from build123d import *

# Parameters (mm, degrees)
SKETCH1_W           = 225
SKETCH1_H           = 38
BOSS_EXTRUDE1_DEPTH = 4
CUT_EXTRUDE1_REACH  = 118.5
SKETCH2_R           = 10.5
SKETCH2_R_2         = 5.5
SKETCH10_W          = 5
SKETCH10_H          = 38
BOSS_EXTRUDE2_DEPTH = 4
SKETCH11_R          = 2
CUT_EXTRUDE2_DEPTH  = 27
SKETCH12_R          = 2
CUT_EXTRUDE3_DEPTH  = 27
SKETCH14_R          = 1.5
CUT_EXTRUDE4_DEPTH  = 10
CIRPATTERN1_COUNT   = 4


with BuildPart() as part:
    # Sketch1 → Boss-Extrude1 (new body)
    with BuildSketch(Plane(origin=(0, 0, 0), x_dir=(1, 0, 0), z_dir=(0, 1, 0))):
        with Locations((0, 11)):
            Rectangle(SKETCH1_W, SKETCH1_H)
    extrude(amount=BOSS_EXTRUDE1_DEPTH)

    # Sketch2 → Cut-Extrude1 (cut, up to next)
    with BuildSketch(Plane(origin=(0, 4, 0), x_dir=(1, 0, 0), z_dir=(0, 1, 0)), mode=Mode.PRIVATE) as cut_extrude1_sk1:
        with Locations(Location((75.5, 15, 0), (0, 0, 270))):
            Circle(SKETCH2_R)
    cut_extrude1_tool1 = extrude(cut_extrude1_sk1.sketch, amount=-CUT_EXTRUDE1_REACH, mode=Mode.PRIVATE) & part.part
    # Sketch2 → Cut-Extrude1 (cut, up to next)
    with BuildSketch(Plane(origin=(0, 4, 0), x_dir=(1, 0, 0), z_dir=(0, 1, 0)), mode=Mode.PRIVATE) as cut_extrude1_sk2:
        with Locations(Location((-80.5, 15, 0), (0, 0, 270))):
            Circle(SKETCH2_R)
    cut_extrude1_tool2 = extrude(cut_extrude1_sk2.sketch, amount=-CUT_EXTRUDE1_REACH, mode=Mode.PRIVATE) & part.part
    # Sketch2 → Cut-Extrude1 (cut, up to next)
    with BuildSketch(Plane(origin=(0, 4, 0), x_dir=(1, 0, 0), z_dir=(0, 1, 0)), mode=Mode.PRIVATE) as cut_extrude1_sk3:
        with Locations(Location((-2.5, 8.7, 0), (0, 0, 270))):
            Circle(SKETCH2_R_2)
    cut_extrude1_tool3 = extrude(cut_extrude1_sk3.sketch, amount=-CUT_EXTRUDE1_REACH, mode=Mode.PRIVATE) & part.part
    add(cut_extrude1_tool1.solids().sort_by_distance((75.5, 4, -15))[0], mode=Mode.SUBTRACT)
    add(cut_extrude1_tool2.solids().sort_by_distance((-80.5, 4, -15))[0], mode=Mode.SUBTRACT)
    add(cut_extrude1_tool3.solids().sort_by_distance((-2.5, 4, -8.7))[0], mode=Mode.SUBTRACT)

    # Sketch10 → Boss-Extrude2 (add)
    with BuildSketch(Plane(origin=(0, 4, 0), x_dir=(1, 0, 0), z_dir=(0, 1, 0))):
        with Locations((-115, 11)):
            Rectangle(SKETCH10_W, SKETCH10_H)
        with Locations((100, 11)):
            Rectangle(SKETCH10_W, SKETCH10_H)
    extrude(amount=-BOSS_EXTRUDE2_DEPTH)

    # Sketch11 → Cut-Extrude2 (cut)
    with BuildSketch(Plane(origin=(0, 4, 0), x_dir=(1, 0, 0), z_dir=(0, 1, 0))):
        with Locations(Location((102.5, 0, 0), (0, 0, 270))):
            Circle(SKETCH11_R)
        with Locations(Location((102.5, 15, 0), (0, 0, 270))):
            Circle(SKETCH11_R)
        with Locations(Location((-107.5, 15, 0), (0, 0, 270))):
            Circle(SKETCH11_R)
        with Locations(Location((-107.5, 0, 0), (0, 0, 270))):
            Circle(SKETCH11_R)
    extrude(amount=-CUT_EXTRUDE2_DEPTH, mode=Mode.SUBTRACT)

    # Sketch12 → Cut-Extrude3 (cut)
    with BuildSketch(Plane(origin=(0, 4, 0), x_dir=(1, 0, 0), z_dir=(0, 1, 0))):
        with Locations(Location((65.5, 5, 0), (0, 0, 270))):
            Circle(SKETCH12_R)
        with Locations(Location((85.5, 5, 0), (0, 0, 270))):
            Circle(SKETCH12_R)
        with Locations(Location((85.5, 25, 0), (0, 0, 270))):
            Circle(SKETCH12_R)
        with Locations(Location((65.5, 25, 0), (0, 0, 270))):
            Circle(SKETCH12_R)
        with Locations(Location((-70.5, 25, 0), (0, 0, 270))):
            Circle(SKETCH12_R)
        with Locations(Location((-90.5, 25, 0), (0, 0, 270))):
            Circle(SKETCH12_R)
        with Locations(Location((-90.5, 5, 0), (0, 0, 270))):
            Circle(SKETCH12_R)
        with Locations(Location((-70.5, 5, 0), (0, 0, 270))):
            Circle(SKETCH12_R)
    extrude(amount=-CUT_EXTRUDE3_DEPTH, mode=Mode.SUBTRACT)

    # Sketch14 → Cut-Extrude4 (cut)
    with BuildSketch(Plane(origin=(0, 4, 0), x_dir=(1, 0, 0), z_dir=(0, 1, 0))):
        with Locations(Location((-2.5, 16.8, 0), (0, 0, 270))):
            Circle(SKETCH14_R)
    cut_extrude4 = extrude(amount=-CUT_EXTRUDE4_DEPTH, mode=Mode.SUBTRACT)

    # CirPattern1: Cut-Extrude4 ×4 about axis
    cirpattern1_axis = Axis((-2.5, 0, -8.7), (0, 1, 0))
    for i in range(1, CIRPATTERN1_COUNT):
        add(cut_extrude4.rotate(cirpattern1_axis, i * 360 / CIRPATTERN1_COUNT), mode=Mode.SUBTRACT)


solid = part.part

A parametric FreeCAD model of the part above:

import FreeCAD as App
import Part
import Sketcher
from FreeCAD import Vector
Q = App.Units.Quantity

doc = App.newDocument("Part")
body = doc.addObject("PartDesign::Body", "Body")

# Sketch on XZ plane
sketch1 = body.newObject("Sketcher::SketchObject", "Sketch")
sketch1.AttachmentSupport = (doc.getObject("XZ_Plane"), [""])
sketch1.MapMode = "FlatFace"
sketch1.addGeometry(Part.LineSegment(Vector(-112, -30, 0), Vector(-112, 8, 0)), False)
sketch1.addGeometry(Part.LineSegment(Vector(-112, 8, 0), Vector(112, 8, 0)), False)
sketch1.addGeometry(Part.LineSegment(Vector(112, 8, 0), Vector(112, -30, 0)), False)
sketch1.addGeometry(Part.LineSegment(Vector(112, -30, 0), Vector(-112, -30, 0)), False)
sketch1.addConstraint(Sketcher.Constraint("Coincident", 0, 2, 1, 1))
sketch1.addConstraint(Sketcher.Constraint("Coincident", 1, 2, 2, 1))
sketch1.addConstraint(Sketcher.Constraint("Coincident", 2, 2, 3, 1))
sketch1.addConstraint(Sketcher.Constraint("Coincident", 3, 2, 0, 1))
sketch1.addConstraint(Sketcher.Constraint("Vertical", 0))
sketch1.addConstraint(Sketcher.Constraint("Horizontal", 1))
sketch1.addConstraint(Sketcher.Constraint("Vertical", 2))
sketch1.addConstraint(Sketcher.Constraint("Horizontal", 3))
sketch1.addConstraint(Sketcher.Constraint("DistanceX", 1, 1, 1, 2, Q("225 mm")))
sketch1.addConstraint(Sketcher.Constraint("DistanceY", 0, 1, 0, 2, Q("38 mm")))
sketch1.addConstraint(Sketcher.Constraint("DistanceY", -1, 1, 0, 2, Q("8 mm")))
sketch1.addConstraint(Sketcher.Constraint("DistanceX", 0, 2, -1, 1, Q("112.5 mm")))
pad1 = body.newObject("PartDesign::Pad", "Pad")
pad1.Profile = sketch1
pad1.Length = 4
pad1.Reversed = True

# Sketch on XZ plane
sketch2 = body.newObject("Sketcher::SketchObject", "Sketch001")
sketch2.AttachmentSupport = (doc.getObject("XZ_Plane"), [""])
sketch2.MapMode = "FlatFace"
sketch2.AttachmentOffset = App.Placement(Vector(0, 0, -4), App.Rotation())
sketch2.addGeometry(Part.Circle(Vector(76, -15, 0), Vector(0, 0, 1), 10), False)
sketch2.addConstraint(Sketcher.Constraint("Diameter", 0, Q("21 mm")))
sketch2.addConstraint(Sketcher.Constraint("DistanceY", 0, 3, -1, 1, Q("15 mm")))
sketch2.addConstraint(Sketcher.Constraint("DistanceX", -1, 1, 0, 3, Q("75.5 mm")))
pocket1 = body.newObject("PartDesign::Pocket", "Pocket")
pocket1.Profile = sketch2
pocket1.Type = "UpToFirst"
pocket1.Reversed = True

# Sketch on XZ plane
sketch3 = body.newObject("Sketcher::SketchObject", "Sketch002")
sketch3.AttachmentSupport = (doc.getObject("XZ_Plane"), [""])
sketch3.MapMode = "FlatFace"
sketch3.AttachmentOffset = App.Placement(Vector(0, 0, -4), App.Rotation())
sketch3.addGeometry(Part.Circle(Vector(-80, -15, 0), Vector(0, 0, 1), 10), False)
sketch3.addConstraint(Sketcher.Constraint("Diameter", 0, Q("21 mm")))
sketch3.addConstraint(Sketcher.Constraint("DistanceY", 0, 3, -1, 1, Q("15 mm")))
sketch3.addConstraint(Sketcher.Constraint("DistanceX", 0, 3, -1, 1, Q("80.5 mm")))
pocket2 = body.newObject("PartDesign::Pocket", "Pocket001")
pocket2.Profile = sketch3
pocket2.Type = "UpToFirst"
pocket2.Reversed = True

# Sketch on XZ plane
sketch4 = body.newObject("Sketcher::SketchObject", "Sketch003")
sketch4.AttachmentSupport = (doc.getObject("XZ_Plane"), [""])
sketch4.MapMode = "FlatFace"
sketch4.AttachmentOffset = App.Placement(Vector(0, 0, -4), App.Rotation())
sketch4.addGeometry(Part.Circle(Vector(-2, -9, 0), Vector(0, 0, 1), 6), False)
sketch4.addConstraint(Sketcher.Constraint("Diameter", 0, Q("11 mm")))
sketch4.addConstraint(Sketcher.Constraint("DistanceX", 0, 3, -1, 1, Q("2.5 mm")))
sketch4.addConstraint(Sketcher.Constraint("DistanceY", 0, 3, -1, 1, Q("8.7 mm")))
pocket3 = body.newObject("PartDesign::Pocket", "Pocket002")
pocket3.Profile = sketch4
pocket3.Type = "UpToFirst"
pocket3.Reversed = True

# Sketch on XZ plane
sketch5 = body.newObject("Sketcher::SketchObject", "Sketch004")
sketch5.AttachmentSupport = (doc.getObject("XZ_Plane"), [""])
sketch5.MapMode = "FlatFace"
sketch5.AttachmentOffset = App.Placement(Vector(0, 0, -4), App.Rotation())
sketch5.addGeometry(Part.LineSegment(Vector(-118, -30, 0), Vector(-118, 8, 0)), False)
sketch5.addGeometry(Part.LineSegment(Vector(-118, 8, 0), Vector(-112, 8, 0)), False)
sketch5.addGeometry(Part.LineSegment(Vector(-112, 8, 0), Vector(-112, -30, 0)), False)
sketch5.addGeometry(Part.LineSegment(Vector(-112, -30, 0), Vector(-118, -30, 0)), False)
sketch5.addGeometry(Part.LineSegment(Vector(98, -30, 0), Vector(98, 8, 0)), False)
sketch5.addGeometry(Part.LineSegment(Vector(98, 8, 0), Vector(102, 8, 0)), False)
sketch5.addGeometry(Part.LineSegment(Vector(102, 8, 0), Vector(102, -30, 0)), False)
sketch5.addGeometry(Part.LineSegment(Vector(102, -30, 0), Vector(98, -30, 0)), False)
sketch5.addConstraint(Sketcher.Constraint("Coincident", 0, 2, 1, 1))
sketch5.addConstraint(Sketcher.Constraint("Coincident", 1, 2, 2, 1))
sketch5.addConstraint(Sketcher.Constraint("Coincident", 2, 2, 3, 1))
sketch5.addConstraint(Sketcher.Constraint("Coincident", 3, 2, 0, 1))
sketch5.addConstraint(Sketcher.Constraint("Coincident", 4, 2, 5, 1))
sketch5.addConstraint(Sketcher.Constraint("Coincident", 5, 2, 6, 1))
sketch5.addConstraint(Sketcher.Constraint("Coincident", 6, 2, 7, 1))
sketch5.addConstraint(Sketcher.Constraint("Coincident", 7, 2, 4, 1))
sketch5.addConstraint(Sketcher.Constraint("Vertical", 0))
sketch5.addConstraint(Sketcher.Constraint("Horizontal", 1))
sketch5.addConstraint(Sketcher.Constraint("Vertical", 2))
sketch5.addConstraint(Sketcher.Constraint("Horizontal", 3))
sketch5.addConstraint(Sketcher.Constraint("Vertical", 4))
sketch5.addConstraint(Sketcher.Constraint("Horizontal", 5))
sketch5.addConstraint(Sketcher.Constraint("Vertical", 6))
sketch5.addConstraint(Sketcher.Constraint("Horizontal", 7))
sketch5.addConstraint(Sketcher.Constraint("Horizontal", 1, 2, 4, 2))
sketch5.addConstraint(Sketcher.Constraint("Horizontal", 3, 2, 6, 2))
sketch5.addConstraint(Sketcher.Constraint("Equal", 3, 5))
sketch5.addConstraint(Sketcher.Constraint("DistanceX", 1, 1, 1, 2, Q("5 mm")))
sketch5.addConstraint(Sketcher.Constraint("DistanceY", 0, 1, 0, 2, Q("38 mm")))
sketch5.addConstraint(Sketcher.Constraint("DistanceY", -1, 1, 0, 2, Q("8 mm")))
sketch5.addConstraint(Sketcher.Constraint("DistanceX", 1, 2, 4, 2, Q("210 mm")))
sketch5.addConstraint(Sketcher.Constraint("DistanceX", 0, 2, -1, 1, Q("117.5 mm")))
pad2 = body.newObject("PartDesign::Pad", "Pad001")
pad2.Profile = sketch5
pad2.Length = 4

# Sketch on XZ plane
sketch6 = body.newObject("Sketcher::SketchObject", "Sketch005")
sketch6.AttachmentSupport = (doc.getObject("XZ_Plane"), [""])
sketch6.MapMode = "FlatFace"
sketch6.AttachmentOffset = App.Placement(Vector(0, 0, -4), App.Rotation())
sketch6.addGeometry(Part.Circle(Vector(102.5, 0, 0), Vector(0, 0, 1), 2), False)
sketch6.addGeometry(Part.Circle(Vector(102.5, -15, 0), Vector(0, 0, 1), 2), False)
sketch6.addGeometry(Part.Circle(Vector(-107.5, -15, 0), Vector(0, 0, 1), 2), False)
sketch6.addGeometry(Part.Circle(Vector(-107.5, 0, 0), Vector(0, 0, 1), 2), False)
sketch6.addConstraint(Sketcher.Constraint("Equal", 0, 1))
sketch6.addConstraint(Sketcher.Constraint("Equal", 1, 2))
sketch6.addConstraint(Sketcher.Constraint("Equal", 2, 3))
sketch6.addConstraint(Sketcher.Constraint("PointOnObject", 0, 3, -1))
sketch6.addConstraint(Sketcher.Constraint("PointOnObject", 3, 3, -1))
sketch6.addConstraint(Sketcher.Constraint("Horizontal", 1, 3, 2, 3))
sketch6.addConstraint(Sketcher.Constraint("Vertical", 0, 3, 1, 3))
sketch6.addConstraint(Sketcher.Constraint("Vertical", 2, 3, 3, 3))
sketch6.addConstraint(Sketcher.Constraint("Diameter", 0, Q("4 mm")))
sketch6.addConstraint(Sketcher.Constraint("DistanceY", 1, 3, -1, 1, Q("15 mm")))
sketch6.addConstraint(Sketcher.Constraint("DistanceX", 2, 3, 1, 3, Q("210 mm")))
sketch6.addConstraint(Sketcher.Constraint("DistanceX", -1, 1, 0, 3, Q("102.5 mm")))
pocket4 = body.newObject("PartDesign::Pocket", "Pocket003")
pocket4.Profile = sketch6
pocket4.Length = 27
pocket4.Reversed = True

# Sketch on XZ plane
sketch7 = body.newObject("Sketcher::SketchObject", "Sketch006")
sketch7.AttachmentSupport = (doc.getObject("XZ_Plane"), [""])
sketch7.MapMode = "FlatFace"
sketch7.AttachmentOffset = App.Placement(Vector(0, 0, -4), App.Rotation())
sketch7.addGeometry(Part.Circle(Vector(65.5, -5, 0), Vector(0, 0, 1), 2), False)
sketch7.addGeometry(Part.Circle(Vector(85.5, -5, 0), Vector(0, 0, 1), 2), False)
sketch7.addGeometry(Part.Circle(Vector(85.5, -25, 0), Vector(0, 0, 1), 2), False)
sketch7.addGeometry(Part.Circle(Vector(65.5, -25, 0), Vector(0, 0, 1), 2), False)
sketch7.addGeometry(Part.Circle(Vector(-70.5, -25, 0), Vector(0, 0, 1), 2), False)
sketch7.addGeometry(Part.Circle(Vector(-90.5, -25, 0), Vector(0, 0, 1), 2), False)
sketch7.addGeometry(Part.Circle(Vector(-90.5, -5, 0), Vector(0, 0, 1), 2), False)
sketch7.addGeometry(Part.Circle(Vector(-70.5, -5, 0), Vector(0, 0, 1), 2), False)
sketch7.addConstraint(Sketcher.Constraint("Equal", 0, 1))
sketch7.addConstraint(Sketcher.Constraint("Equal", 1, 2))
sketch7.addConstraint(Sketcher.Constraint("Equal", 2, 3))
sketch7.addConstraint(Sketcher.Constraint("Equal", 3, 4))
sketch7.addConstraint(Sketcher.Constraint("Equal", 4, 5))
sketch7.addConstraint(Sketcher.Constraint("Equal", 5, 6))
sketch7.addConstraint(Sketcher.Constraint("Equal", 6, 7))
sketch7.addConstraint(Sketcher.Constraint("Horizontal", 0, 3, 1, 3))
sketch7.addConstraint(Sketcher.Constraint("Horizontal", 2, 3, 3, 3))
sketch7.addConstraint(Sketcher.Constraint("Horizontal", 3, 3, 4, 3))
sketch7.addConstraint(Sketcher.Constraint("Horizontal", 4, 3, 5, 3))
sketch7.addConstraint(Sketcher.Constraint("Horizontal", 1, 3, 6, 3))
sketch7.addConstraint(Sketcher.Constraint("Horizontal", 6, 3, 7, 3))
sketch7.addConstraint(Sketcher.Constraint("Vertical", 1, 3, 2, 3))
sketch7.addConstraint(Sketcher.Constraint("Vertical", 0, 3, 3, 3))
sketch7.addConstraint(Sketcher.Constraint("Vertical", 5, 3, 6, 3))
sketch7.addConstraint(Sketcher.Constraint("Vertical", 4, 3, 7, 3))
sketch7.addConstraint(Sketcher.Constraint("Diameter", 0, Q("4 mm")))
sketch7.addConstraint(Sketcher.Constraint("DistanceY", 0, 3, -1, 1, Q("5 mm")))
sketch7.addConstraint(Sketcher.Constraint("DistanceY", 2, 3, -1, 1, Q("25 mm")))
sketch7.addConstraint(Sketcher.Constraint("DistanceX", 0, 3, 1, 3, Q("20 mm")))
sketch7.addConstraint(Sketcher.Constraint("DistanceX", 4, 3, 3, 3, Q("136 mm")))
sketch7.addConstraint(Sketcher.Constraint("DistanceX", 5, 3, 4, 3, Q("20 mm")))
sketch7.addConstraint(Sketcher.Constraint("DistanceX", -1, 1, 0, 3, Q("65.5 mm")))
pocket5 = body.newObject("PartDesign::Pocket", "Pocket004")
pocket5.Profile = sketch7
pocket5.Length = 27
pocket5.Reversed = True

# Sketch on XZ plane
sketch8 = body.newObject("Sketcher::SketchObject", "Sketch007")
sketch8.AttachmentSupport = (doc.getObject("XZ_Plane"), [""])
sketch8.MapMode = "FlatFace"
sketch8.AttachmentOffset = App.Placement(Vector(0, 0, -4), App.Rotation())
sketch8.addGeometry(Part.Circle(Vector(-2.5, -16.8, 0), Vector(0, 0, 1), 1.5), False)
sketch8.addConstraint(Sketcher.Constraint("Diameter", 0, Q("3 mm")))
sketch8.addConstraint(Sketcher.Constraint("DistanceX", 0, 3, -1, 1, Q("2.5 mm")))
sketch8.addConstraint(Sketcher.Constraint("DistanceY", 0, 3, -1, 1, Q("16.8 mm")))
pocket6 = body.newObject("PartDesign::Pocket", "Pocket005")
pocket6.Profile = sketch8
pocket6.Length = 10
pocket6.Reversed = True
doc.recompute()

datumline = body.newObject("PartDesign::Line", "DatumLine")
datumline.Placement = App.Placement(Vector(-2.5, 0, -8.7), App.Rotation(Vector(0, 0, 1), Vector(0, 1, 0)))
polarpattern = body.newObject("PartDesign::PolarPattern", "PolarPattern")
polarpattern.Originals = [pocket6]
polarpattern.Axis = (datumline, [""])
polarpattern.Angle = 360
polarpattern.Occurrences = 4
body.Tip = polarpattern

doc.recompute()
